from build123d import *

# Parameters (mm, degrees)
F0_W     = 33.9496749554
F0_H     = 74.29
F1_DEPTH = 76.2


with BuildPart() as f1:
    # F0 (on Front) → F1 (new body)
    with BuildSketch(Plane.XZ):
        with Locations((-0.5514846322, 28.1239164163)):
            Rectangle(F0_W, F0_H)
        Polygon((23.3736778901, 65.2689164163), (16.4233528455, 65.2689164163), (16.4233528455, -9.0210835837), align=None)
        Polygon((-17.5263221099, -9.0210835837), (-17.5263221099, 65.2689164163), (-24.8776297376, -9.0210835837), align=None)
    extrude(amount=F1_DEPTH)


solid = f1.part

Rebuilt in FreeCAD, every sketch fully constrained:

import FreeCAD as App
import Part
import Sketcher
Q = App.Units.Quantity


def add_polygon(sketch, points):
    """Adds a closed chain of lines whose ends are joined by coincident constraints."""
    first, n = sketch.GeometryCount, len(points)
    for a, b in zip(points, points[1:] + points[:1]):
        sketch.addGeometry(Part.LineSegment(App.Vector(*a, 0), App.Vector(*b, 0)), False)
    for i in range(n):
        sketch.addConstraint(Sketcher.Constraint("Coincident", first + i, 2, first + (i + 1) % n, 1))

doc = App.newDocument("Part")
body = doc.addObject("PartDesign::Body", "Body")

sketch1 = body.newObject("Sketcher::SketchObject", "Sketch")
sketch1.AttachmentSupport = (doc.getObject("XZ_Plane"), [""])
sketch1.MapMode = "FlatFace"
add_polygon(sketch1, [(16.423353, -9.021084), (23.373678, 65.268916), (-17.526322, 65.268916), (-24.87763, -9.021084)])
sketch1.addConstraint([
    Sketcher.Constraint("Horizontal", 1),
    Sketcher.Constraint("Horizontal", 3),
    Sketcher.Constraint("DistanceX", 1, 2, 1, 1, Q("40.9 mm")),
    Sketcher.Constraint("DistanceY", 2, 2, 1, 2, Q("74.29 mm")),
    Sketcher.Constraint("DistanceX", 3, 1, 3, 2, Q("41.300983 mm")),
    Sketcher.Constraint("DistanceX", 2, 2, -1, 1, Q("24.87763 mm")),
    Sketcher.Constraint("Distance", 0, Q("74.614416 mm")),
    Sketcher.Constraint("DistanceY", -1, 1, 0, 2, Q("65.268916 mm")),
])
pad1 = body.newObject("PartDesign::Pad", "Pad")
pad1.Profile = sketch1
pad1.Length = 76.2

doc.recompute()
